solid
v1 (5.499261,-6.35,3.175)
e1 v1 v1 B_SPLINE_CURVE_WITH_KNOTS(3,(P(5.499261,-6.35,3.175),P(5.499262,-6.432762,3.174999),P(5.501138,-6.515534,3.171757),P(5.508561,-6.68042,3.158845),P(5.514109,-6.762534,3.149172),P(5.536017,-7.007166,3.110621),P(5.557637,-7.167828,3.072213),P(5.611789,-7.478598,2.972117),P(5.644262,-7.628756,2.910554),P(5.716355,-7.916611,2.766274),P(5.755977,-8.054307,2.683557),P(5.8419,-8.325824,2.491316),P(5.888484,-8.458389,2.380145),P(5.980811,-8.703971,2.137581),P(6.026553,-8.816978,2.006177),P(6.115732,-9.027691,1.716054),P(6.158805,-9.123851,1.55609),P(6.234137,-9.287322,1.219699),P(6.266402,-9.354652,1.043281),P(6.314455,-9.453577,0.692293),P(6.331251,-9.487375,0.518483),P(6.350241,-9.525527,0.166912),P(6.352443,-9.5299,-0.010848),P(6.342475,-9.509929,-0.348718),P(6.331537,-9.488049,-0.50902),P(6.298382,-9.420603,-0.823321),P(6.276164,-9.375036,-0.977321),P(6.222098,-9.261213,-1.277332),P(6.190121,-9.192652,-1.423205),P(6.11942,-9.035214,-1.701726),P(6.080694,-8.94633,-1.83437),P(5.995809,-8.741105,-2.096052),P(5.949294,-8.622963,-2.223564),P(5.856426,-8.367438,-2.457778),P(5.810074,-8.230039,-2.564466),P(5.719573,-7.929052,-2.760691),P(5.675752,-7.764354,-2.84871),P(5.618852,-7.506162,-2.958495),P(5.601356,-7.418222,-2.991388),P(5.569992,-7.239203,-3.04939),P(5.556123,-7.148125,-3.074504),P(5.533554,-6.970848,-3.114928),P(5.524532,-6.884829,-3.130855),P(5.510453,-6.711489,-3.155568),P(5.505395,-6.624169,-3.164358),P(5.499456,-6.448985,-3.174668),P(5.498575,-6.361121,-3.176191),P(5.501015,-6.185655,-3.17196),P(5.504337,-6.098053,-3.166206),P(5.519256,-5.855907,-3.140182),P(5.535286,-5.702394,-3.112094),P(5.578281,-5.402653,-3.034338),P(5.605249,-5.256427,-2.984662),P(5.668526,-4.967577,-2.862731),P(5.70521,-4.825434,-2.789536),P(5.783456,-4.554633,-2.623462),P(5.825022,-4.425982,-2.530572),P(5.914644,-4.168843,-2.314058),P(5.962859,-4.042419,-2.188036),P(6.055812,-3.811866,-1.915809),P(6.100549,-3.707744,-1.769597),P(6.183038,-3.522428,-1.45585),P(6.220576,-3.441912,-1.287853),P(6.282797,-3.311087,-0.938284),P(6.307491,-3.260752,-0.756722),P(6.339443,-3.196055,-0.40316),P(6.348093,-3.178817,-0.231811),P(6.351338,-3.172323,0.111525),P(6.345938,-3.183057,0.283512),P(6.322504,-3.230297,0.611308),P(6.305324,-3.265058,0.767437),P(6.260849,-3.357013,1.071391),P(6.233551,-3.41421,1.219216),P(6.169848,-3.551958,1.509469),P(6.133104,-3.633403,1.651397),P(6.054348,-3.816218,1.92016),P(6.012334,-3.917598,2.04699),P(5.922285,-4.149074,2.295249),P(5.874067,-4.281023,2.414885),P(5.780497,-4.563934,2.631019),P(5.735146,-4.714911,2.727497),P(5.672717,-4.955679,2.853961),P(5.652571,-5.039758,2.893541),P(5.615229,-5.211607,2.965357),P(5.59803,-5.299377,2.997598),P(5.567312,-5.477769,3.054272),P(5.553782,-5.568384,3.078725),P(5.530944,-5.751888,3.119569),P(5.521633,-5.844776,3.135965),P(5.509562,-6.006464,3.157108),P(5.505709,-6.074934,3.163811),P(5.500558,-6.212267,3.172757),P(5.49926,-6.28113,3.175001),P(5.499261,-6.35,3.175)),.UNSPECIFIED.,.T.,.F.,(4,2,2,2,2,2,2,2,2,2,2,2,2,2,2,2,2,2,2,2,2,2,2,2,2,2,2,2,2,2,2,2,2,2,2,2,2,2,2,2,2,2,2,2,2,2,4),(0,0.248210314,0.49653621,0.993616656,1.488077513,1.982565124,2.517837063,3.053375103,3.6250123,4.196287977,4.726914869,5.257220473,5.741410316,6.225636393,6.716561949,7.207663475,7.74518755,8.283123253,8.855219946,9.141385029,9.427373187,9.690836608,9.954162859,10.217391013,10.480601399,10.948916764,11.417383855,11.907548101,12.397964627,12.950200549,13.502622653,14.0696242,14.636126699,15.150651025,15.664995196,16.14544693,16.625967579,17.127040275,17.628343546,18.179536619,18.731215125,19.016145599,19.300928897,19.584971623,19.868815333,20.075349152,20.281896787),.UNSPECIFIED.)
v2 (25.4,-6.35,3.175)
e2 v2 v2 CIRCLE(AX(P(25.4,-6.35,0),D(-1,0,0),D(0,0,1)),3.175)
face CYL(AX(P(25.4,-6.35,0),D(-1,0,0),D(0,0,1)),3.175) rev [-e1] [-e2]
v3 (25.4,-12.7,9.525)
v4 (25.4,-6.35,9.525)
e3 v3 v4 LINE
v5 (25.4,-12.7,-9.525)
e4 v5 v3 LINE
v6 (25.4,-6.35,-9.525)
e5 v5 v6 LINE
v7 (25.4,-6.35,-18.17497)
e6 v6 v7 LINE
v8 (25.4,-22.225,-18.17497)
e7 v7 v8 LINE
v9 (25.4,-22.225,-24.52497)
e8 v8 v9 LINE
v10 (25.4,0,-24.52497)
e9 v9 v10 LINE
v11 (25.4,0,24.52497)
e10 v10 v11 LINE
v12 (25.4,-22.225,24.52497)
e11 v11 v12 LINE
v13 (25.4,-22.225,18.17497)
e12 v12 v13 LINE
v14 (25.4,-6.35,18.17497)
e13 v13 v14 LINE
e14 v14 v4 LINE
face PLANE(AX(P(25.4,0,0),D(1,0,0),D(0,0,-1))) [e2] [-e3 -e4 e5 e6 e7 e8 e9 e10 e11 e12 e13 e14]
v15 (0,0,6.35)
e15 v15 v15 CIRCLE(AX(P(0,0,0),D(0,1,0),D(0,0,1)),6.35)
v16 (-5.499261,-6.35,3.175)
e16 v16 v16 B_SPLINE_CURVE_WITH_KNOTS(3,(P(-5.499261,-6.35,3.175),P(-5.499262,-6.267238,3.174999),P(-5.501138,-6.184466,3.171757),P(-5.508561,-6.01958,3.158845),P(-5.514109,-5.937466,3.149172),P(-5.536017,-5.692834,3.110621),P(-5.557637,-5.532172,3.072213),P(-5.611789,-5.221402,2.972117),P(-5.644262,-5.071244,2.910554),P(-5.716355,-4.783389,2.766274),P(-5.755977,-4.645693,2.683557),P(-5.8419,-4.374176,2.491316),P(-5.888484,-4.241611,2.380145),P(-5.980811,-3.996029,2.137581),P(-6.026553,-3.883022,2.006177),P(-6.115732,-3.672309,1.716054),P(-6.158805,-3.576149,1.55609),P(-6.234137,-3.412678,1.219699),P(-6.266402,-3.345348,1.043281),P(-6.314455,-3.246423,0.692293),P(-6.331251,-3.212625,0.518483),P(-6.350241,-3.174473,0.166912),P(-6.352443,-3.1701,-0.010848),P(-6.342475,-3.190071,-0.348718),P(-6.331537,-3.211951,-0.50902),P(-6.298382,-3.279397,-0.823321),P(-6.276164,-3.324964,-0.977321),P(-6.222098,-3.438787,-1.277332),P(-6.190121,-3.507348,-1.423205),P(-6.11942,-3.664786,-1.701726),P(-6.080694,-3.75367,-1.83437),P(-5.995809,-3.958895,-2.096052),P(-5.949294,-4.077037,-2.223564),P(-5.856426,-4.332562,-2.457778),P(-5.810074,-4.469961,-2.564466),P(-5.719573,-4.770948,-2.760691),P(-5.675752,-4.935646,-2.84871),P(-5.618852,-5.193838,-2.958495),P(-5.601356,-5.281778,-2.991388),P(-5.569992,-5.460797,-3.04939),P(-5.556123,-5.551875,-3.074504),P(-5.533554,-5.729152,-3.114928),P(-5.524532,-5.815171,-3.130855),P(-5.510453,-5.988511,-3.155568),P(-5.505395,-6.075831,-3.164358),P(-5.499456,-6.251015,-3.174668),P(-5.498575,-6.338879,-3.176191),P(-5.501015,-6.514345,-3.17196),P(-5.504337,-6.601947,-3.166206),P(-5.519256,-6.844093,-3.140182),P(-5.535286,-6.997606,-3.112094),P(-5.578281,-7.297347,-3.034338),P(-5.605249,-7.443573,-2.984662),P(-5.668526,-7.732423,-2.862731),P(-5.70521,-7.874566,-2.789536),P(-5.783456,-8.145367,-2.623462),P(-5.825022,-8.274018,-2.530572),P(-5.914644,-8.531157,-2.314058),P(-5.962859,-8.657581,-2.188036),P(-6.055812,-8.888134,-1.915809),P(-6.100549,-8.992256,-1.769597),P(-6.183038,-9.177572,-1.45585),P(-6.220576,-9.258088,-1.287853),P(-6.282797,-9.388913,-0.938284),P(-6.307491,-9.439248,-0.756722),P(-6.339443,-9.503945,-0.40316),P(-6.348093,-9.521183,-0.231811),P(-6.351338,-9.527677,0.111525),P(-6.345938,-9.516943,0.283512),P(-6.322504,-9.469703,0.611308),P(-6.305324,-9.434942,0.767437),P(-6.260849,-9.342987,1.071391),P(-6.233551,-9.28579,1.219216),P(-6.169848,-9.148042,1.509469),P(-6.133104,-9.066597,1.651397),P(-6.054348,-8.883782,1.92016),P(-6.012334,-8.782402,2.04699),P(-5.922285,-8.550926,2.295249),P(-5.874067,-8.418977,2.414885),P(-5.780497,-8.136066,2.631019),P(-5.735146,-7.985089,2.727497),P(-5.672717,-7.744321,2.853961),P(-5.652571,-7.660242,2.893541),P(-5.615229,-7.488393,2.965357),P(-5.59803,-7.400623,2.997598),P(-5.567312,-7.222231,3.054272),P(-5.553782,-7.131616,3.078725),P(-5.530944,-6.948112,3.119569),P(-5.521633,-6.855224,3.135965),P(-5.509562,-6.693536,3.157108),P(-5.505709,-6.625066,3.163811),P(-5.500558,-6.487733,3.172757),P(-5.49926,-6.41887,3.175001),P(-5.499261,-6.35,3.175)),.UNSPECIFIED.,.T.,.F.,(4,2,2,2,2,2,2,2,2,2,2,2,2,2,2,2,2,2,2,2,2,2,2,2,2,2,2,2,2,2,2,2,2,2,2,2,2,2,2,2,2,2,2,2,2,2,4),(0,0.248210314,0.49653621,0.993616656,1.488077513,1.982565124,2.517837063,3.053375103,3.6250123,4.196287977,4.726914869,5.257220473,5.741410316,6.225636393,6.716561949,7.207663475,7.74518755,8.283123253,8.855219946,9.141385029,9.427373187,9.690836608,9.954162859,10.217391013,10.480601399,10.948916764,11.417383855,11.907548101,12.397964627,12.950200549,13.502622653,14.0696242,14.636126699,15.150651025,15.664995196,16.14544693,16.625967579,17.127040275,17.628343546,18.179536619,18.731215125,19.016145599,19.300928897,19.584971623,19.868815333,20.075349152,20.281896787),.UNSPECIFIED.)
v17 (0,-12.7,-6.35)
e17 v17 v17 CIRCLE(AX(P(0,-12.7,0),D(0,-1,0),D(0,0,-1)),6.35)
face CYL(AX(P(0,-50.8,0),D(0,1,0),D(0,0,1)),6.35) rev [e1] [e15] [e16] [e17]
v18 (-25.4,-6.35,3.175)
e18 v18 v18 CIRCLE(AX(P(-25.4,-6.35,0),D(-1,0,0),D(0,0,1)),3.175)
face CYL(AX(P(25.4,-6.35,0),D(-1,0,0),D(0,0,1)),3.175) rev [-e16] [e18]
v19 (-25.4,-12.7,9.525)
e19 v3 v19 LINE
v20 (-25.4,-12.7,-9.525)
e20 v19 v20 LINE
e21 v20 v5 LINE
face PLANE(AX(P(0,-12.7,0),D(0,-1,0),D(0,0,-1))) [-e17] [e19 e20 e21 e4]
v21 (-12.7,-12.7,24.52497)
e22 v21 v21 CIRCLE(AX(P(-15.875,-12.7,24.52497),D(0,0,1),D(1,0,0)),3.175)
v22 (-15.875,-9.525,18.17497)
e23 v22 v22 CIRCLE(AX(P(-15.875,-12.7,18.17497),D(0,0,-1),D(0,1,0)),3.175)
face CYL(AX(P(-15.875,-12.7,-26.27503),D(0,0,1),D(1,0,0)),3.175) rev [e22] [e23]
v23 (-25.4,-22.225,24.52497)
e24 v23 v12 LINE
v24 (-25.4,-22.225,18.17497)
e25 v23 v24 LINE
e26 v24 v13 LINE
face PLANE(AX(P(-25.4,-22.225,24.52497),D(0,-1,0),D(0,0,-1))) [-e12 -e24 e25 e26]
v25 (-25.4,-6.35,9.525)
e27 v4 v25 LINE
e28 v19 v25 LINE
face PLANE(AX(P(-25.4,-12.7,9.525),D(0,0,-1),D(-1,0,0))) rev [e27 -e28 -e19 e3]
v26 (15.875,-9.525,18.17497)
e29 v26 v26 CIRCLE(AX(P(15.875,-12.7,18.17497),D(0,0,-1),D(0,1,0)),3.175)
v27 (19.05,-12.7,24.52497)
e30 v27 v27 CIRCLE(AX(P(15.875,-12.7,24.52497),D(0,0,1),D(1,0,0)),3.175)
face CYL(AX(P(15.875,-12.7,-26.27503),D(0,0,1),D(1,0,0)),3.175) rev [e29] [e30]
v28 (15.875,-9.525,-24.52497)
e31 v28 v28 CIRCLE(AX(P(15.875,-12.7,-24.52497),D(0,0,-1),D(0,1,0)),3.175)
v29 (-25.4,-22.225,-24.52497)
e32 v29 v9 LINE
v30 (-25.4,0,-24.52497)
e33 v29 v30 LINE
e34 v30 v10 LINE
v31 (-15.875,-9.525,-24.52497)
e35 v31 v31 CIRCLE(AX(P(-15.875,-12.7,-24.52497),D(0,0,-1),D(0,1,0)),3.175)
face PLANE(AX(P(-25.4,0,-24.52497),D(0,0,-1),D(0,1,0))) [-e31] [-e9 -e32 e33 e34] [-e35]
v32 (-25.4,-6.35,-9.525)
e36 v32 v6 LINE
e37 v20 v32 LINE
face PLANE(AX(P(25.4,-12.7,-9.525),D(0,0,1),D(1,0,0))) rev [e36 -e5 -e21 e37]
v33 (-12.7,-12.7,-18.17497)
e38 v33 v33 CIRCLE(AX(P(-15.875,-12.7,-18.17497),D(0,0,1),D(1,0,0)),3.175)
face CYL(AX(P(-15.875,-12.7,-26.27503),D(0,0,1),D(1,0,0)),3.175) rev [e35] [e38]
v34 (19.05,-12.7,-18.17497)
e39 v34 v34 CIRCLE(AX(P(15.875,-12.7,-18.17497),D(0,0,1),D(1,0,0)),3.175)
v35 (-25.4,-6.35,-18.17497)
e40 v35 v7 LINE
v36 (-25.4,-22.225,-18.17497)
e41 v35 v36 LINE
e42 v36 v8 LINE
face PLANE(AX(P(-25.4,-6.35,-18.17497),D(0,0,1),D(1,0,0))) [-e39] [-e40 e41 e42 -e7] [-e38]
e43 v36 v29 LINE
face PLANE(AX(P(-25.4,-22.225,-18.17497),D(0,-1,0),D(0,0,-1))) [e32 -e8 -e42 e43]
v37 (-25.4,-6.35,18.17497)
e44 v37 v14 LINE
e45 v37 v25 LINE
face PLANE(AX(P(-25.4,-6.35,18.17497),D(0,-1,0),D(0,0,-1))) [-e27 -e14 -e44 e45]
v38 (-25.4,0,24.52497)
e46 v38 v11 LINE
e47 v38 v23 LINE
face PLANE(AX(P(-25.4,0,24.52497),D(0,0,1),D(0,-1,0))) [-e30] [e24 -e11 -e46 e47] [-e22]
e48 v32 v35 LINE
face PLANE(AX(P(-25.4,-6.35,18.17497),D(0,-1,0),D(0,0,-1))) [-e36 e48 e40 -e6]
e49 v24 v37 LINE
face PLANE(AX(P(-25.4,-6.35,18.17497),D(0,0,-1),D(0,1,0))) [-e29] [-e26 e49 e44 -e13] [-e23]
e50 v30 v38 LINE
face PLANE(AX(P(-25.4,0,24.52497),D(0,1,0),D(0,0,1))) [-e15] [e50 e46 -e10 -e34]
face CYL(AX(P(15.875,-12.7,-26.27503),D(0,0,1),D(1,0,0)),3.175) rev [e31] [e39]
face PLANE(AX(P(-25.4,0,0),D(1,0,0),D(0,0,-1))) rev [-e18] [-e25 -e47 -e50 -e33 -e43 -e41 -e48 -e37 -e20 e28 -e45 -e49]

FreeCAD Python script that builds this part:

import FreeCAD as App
import Part
import Sketcher
Q = App.Units.Quantity

doc = App.newDocument("Part")
body = doc.addObject("PartDesign::Body", "Body")

sketch1 = doc.addObject("Sketcher::SketchObject", "Sketch")
body.addObject(sketch1)
sketch1.AttachmentSupport = (doc.YZ_Plane, [""])
sketch1.MapMode = "FlatFace"
sketch1.addGeometry([
    Part.LineSegment(App.Vector(-22, -18, 0), App.Vector(-22, -25, 0)),
    Part.LineSegment(App.Vector(-22, -25, 0), App.Vector(0, -25, 0)),
    Part.LineSegment(App.Vector(0, -25, 0), App.Vector(0, 25, 0)),
    Part.LineSegment(App.Vector(0, 25, 0), App.Vector(-22, 25, 0)),
    Part.LineSegment(App.Vector(-22, 25, 0), App.Vector(-22, 18, 0)),
    Part.LineSegment(App.Vector(-22, 18, 0), App.Vector(-6, 18, 0)),
    Part.LineSegment(App.Vector(-6, 18, 0), App.Vector(-6, -18, 0)),
    Part.LineSegment(App.Vector(-6, -18, 0), App.Vector(-22, -18, 0)),
], False)
sketch1.addConstraint([
    Sketcher.Constraint("Coincident", 0, 2, 1, 1),
    Sketcher.Constraint("Coincident", 1, 2, 2, 1),
    Sketcher.Constraint("Coincident", 2, 2, 3, 1),
    Sketcher.Constraint("Coincident", 3, 2, 4, 1),
    Sketcher.Constraint("Coincident", 4, 2, 5, 1),
    Sketcher.Constraint("Coincident", 5, 2, 6, 1),
    Sketcher.Constraint("Coincident", 6, 2, 7, 1),
    Sketcher.Constraint("Coincident", 7, 2, 0, 1),
    Sketcher.Constraint("Vertical", 0),
    Sketcher.Constraint("Horizontal", 1),
    Sketcher.Constraint("Vertical", 2),
    Sketcher.Constraint("Horizontal", 3),
    Sketcher.Constraint("Vertical", 4),
    Sketcher.Constraint("Horizontal", 5),
    Sketcher.Constraint("Vertical", 6),
    Sketcher.Constraint("Horizontal", 7),
    Sketcher.Constraint("Symmetric", 1, 2, 2, 2, -1, 1),
    Sketcher.Constraint("Symmetric", 4, 2, 7, 2, -1),
    Sketcher.Constraint("DistanceY", 0, 2, 0, 1, Q("0.25 in")),
    Sketcher.Constraint("DistanceX", 1, 1, 1, 2, Q("0.875 in")),
    Sketcher.Constraint("DistanceX", 5, 1, 5, 2, Q("0.625 in")),
    Sketcher.Constraint("DistanceY", 2, 1, 2, 2, Q("1.9311 in")),
])
pad1 = doc.addObject("PartDesign::Pad", "Pad")
body.addObject(pad1)
pad1.Profile = sketch1
pad1.Type = "TwoLengths"
pad1.Length = Q("1 in")
pad1.Length2 = Q("1 in")

sketch2 = doc.addObject("Sketcher::SketchObject", "Sketch001")
body.addObject(sketch2)
sketch2.AttachmentSupport = (doc.XY_Plane, [""])
sketch2.MapMode = "FlatFace"
sketch2.AttachmentOffset = App.Placement(App.Vector(0, 0, 24.52497), App.Rotation())
sketch2.addGeometry([
    Part.Circle(App.Vector(-15.9, -12.7, 0), App.Vector(0, 0, 1), 3.2),
    Part.Circle(App.Vector(15.9, -12.7, 0), App.Vector(0, 0, 1), 3.2),
], False)
sketch2.addConstraint([
    Sketcher.Constraint("Equal", 0, 1),
    Sketcher.Constraint("Symmetric", 0, 3, 1, 3, -2),
    Sketcher.Constraint("Diameter", 0, Q("0.25 in")),
    Sketcher.Constraint("DistanceY", 0, 3, -1, 1, Q("0.5 in")),
    Sketcher.Constraint("DistanceX", 0, 3, 1, 3, Q("1.25 in")),
])
pocket1 = doc.addObject("PartDesign::Pocket", "Pocket")
body.addObject(pocket1)
pocket1.Profile = sketch2
pocket1.Length = Q("2 in")

sketch3 = doc.addObject("Sketcher::SketchObject", "Sketch002")
body.addObject(sketch3)
sketch3.AttachmentSupport = (doc.XZ_Plane, [""])
sketch3.MapMode = "FlatFace"
sketch3.AttachmentOffset = App.Placement(App.Vector(0, 0, 0.25 * 25.4), App.Rotation())
sketch3.addGeometry([
    Part.LineSegment(App.Vector(25, 10, 0), App.Vector(-25, 10, 0)),
    Part.LineSegment(App.Vector(-25, 10, 0), App.Vector(-25, -10, 0)),
    Part.LineSegment(App.Vector(-25, -10, 0), App.Vector(25, -10, 0)),
    Part.LineSegment(App.Vector(25, -10, 0), App.Vector(25, 10, 0)),
], False)
sketch3.addConstraint([
    Sketcher.Constraint("Coincident", 0, 2, 1, 1),
    Sketcher.Constraint("Coincident", 1, 2, 2, 1),
    Sketcher.Constraint("Coincident", 2, 2, 3, 1),
    Sketcher.Constraint("Coincident", 3, 2, 0, 1),
    Sketcher.Constraint("Horizontal", 0),
    Sketcher.Constraint("Vertical", 1),
    Sketcher.Constraint("Horizontal", 2),
    Sketcher.Constraint("Vertical", 3),
    Sketcher.Constraint("Symmetric", 0, 2, 2, 2, -1, 1),
    Sketcher.Constraint("DistanceX", 0, 2, 0, 1, Q("2 in")),
    Sketcher.Constraint("DistanceY", 1, 2, 1, 1, Q("0.75 in")),
])
pad2 = doc.addObject("PartDesign::Pad", "Pad001")
body.addObject(pad2)
pad2.Profile = sketch3
pad2.Length = Q("0.25 in")

sketch4 = doc.addObject("Sketcher::SketchObject", "Sketch003")
body.addObject(sketch4)
sketch4.AttachmentSupport = (doc.XZ_Plane, [""])
sketch4.MapMode = "FlatFace"
sketch4.addGeometry(Part.Circle(App.Vector(0, 0, 0), App.Vector(0, 0, 1), 6), False)
sketch4.addConstraint([
    Sketcher.Constraint("Coincident", 0, 3, -1, 1),
    Sketcher.Constraint("Diameter", 0, Q("0.5 in")),
])
pocket2 = doc.addObject("PartDesign::Pocket", "Pocket001")
body.addObject(pocket2)
pocket2.Profile = sketch4
pocket2.Length = Q("2 in")
pocket2.Reversed = True

sketch5 = doc.addObject("Sketcher::SketchObject", "Sketch004")
body.addObject(sketch5)
sketch5.AttachmentSupport = (doc.YZ_Plane, [""])
sketch5.MapMode = "FlatFace"
sketch5.AttachmentOffset = App.Placement(App.Vector(0, 0, -1 * 25.4), App.Rotation())
sketch5.addGeometry(Part.Circle(App.Vector(-6.3, 0, 0), App.Vector(0, 0, 1), 3.2), False)
sketch5.addConstraint([
    Sketcher.Constraint("PointOnObject", 0, 3, -1),
    Sketcher.Constraint("Diameter", 0, Q("0.25 in")),
    Sketcher.Constraint("DistanceX", 0, 3, -1, 1, Q("0.25 in")),
])
pocket3 = doc.addObject("PartDesign::Pocket", "Pocket002")
body.addObject(pocket3)
pocket3.Profile = sketch5
pocket3.Type = "ThroughAll"
pocket3.Reversed = True

doc.recompute()
